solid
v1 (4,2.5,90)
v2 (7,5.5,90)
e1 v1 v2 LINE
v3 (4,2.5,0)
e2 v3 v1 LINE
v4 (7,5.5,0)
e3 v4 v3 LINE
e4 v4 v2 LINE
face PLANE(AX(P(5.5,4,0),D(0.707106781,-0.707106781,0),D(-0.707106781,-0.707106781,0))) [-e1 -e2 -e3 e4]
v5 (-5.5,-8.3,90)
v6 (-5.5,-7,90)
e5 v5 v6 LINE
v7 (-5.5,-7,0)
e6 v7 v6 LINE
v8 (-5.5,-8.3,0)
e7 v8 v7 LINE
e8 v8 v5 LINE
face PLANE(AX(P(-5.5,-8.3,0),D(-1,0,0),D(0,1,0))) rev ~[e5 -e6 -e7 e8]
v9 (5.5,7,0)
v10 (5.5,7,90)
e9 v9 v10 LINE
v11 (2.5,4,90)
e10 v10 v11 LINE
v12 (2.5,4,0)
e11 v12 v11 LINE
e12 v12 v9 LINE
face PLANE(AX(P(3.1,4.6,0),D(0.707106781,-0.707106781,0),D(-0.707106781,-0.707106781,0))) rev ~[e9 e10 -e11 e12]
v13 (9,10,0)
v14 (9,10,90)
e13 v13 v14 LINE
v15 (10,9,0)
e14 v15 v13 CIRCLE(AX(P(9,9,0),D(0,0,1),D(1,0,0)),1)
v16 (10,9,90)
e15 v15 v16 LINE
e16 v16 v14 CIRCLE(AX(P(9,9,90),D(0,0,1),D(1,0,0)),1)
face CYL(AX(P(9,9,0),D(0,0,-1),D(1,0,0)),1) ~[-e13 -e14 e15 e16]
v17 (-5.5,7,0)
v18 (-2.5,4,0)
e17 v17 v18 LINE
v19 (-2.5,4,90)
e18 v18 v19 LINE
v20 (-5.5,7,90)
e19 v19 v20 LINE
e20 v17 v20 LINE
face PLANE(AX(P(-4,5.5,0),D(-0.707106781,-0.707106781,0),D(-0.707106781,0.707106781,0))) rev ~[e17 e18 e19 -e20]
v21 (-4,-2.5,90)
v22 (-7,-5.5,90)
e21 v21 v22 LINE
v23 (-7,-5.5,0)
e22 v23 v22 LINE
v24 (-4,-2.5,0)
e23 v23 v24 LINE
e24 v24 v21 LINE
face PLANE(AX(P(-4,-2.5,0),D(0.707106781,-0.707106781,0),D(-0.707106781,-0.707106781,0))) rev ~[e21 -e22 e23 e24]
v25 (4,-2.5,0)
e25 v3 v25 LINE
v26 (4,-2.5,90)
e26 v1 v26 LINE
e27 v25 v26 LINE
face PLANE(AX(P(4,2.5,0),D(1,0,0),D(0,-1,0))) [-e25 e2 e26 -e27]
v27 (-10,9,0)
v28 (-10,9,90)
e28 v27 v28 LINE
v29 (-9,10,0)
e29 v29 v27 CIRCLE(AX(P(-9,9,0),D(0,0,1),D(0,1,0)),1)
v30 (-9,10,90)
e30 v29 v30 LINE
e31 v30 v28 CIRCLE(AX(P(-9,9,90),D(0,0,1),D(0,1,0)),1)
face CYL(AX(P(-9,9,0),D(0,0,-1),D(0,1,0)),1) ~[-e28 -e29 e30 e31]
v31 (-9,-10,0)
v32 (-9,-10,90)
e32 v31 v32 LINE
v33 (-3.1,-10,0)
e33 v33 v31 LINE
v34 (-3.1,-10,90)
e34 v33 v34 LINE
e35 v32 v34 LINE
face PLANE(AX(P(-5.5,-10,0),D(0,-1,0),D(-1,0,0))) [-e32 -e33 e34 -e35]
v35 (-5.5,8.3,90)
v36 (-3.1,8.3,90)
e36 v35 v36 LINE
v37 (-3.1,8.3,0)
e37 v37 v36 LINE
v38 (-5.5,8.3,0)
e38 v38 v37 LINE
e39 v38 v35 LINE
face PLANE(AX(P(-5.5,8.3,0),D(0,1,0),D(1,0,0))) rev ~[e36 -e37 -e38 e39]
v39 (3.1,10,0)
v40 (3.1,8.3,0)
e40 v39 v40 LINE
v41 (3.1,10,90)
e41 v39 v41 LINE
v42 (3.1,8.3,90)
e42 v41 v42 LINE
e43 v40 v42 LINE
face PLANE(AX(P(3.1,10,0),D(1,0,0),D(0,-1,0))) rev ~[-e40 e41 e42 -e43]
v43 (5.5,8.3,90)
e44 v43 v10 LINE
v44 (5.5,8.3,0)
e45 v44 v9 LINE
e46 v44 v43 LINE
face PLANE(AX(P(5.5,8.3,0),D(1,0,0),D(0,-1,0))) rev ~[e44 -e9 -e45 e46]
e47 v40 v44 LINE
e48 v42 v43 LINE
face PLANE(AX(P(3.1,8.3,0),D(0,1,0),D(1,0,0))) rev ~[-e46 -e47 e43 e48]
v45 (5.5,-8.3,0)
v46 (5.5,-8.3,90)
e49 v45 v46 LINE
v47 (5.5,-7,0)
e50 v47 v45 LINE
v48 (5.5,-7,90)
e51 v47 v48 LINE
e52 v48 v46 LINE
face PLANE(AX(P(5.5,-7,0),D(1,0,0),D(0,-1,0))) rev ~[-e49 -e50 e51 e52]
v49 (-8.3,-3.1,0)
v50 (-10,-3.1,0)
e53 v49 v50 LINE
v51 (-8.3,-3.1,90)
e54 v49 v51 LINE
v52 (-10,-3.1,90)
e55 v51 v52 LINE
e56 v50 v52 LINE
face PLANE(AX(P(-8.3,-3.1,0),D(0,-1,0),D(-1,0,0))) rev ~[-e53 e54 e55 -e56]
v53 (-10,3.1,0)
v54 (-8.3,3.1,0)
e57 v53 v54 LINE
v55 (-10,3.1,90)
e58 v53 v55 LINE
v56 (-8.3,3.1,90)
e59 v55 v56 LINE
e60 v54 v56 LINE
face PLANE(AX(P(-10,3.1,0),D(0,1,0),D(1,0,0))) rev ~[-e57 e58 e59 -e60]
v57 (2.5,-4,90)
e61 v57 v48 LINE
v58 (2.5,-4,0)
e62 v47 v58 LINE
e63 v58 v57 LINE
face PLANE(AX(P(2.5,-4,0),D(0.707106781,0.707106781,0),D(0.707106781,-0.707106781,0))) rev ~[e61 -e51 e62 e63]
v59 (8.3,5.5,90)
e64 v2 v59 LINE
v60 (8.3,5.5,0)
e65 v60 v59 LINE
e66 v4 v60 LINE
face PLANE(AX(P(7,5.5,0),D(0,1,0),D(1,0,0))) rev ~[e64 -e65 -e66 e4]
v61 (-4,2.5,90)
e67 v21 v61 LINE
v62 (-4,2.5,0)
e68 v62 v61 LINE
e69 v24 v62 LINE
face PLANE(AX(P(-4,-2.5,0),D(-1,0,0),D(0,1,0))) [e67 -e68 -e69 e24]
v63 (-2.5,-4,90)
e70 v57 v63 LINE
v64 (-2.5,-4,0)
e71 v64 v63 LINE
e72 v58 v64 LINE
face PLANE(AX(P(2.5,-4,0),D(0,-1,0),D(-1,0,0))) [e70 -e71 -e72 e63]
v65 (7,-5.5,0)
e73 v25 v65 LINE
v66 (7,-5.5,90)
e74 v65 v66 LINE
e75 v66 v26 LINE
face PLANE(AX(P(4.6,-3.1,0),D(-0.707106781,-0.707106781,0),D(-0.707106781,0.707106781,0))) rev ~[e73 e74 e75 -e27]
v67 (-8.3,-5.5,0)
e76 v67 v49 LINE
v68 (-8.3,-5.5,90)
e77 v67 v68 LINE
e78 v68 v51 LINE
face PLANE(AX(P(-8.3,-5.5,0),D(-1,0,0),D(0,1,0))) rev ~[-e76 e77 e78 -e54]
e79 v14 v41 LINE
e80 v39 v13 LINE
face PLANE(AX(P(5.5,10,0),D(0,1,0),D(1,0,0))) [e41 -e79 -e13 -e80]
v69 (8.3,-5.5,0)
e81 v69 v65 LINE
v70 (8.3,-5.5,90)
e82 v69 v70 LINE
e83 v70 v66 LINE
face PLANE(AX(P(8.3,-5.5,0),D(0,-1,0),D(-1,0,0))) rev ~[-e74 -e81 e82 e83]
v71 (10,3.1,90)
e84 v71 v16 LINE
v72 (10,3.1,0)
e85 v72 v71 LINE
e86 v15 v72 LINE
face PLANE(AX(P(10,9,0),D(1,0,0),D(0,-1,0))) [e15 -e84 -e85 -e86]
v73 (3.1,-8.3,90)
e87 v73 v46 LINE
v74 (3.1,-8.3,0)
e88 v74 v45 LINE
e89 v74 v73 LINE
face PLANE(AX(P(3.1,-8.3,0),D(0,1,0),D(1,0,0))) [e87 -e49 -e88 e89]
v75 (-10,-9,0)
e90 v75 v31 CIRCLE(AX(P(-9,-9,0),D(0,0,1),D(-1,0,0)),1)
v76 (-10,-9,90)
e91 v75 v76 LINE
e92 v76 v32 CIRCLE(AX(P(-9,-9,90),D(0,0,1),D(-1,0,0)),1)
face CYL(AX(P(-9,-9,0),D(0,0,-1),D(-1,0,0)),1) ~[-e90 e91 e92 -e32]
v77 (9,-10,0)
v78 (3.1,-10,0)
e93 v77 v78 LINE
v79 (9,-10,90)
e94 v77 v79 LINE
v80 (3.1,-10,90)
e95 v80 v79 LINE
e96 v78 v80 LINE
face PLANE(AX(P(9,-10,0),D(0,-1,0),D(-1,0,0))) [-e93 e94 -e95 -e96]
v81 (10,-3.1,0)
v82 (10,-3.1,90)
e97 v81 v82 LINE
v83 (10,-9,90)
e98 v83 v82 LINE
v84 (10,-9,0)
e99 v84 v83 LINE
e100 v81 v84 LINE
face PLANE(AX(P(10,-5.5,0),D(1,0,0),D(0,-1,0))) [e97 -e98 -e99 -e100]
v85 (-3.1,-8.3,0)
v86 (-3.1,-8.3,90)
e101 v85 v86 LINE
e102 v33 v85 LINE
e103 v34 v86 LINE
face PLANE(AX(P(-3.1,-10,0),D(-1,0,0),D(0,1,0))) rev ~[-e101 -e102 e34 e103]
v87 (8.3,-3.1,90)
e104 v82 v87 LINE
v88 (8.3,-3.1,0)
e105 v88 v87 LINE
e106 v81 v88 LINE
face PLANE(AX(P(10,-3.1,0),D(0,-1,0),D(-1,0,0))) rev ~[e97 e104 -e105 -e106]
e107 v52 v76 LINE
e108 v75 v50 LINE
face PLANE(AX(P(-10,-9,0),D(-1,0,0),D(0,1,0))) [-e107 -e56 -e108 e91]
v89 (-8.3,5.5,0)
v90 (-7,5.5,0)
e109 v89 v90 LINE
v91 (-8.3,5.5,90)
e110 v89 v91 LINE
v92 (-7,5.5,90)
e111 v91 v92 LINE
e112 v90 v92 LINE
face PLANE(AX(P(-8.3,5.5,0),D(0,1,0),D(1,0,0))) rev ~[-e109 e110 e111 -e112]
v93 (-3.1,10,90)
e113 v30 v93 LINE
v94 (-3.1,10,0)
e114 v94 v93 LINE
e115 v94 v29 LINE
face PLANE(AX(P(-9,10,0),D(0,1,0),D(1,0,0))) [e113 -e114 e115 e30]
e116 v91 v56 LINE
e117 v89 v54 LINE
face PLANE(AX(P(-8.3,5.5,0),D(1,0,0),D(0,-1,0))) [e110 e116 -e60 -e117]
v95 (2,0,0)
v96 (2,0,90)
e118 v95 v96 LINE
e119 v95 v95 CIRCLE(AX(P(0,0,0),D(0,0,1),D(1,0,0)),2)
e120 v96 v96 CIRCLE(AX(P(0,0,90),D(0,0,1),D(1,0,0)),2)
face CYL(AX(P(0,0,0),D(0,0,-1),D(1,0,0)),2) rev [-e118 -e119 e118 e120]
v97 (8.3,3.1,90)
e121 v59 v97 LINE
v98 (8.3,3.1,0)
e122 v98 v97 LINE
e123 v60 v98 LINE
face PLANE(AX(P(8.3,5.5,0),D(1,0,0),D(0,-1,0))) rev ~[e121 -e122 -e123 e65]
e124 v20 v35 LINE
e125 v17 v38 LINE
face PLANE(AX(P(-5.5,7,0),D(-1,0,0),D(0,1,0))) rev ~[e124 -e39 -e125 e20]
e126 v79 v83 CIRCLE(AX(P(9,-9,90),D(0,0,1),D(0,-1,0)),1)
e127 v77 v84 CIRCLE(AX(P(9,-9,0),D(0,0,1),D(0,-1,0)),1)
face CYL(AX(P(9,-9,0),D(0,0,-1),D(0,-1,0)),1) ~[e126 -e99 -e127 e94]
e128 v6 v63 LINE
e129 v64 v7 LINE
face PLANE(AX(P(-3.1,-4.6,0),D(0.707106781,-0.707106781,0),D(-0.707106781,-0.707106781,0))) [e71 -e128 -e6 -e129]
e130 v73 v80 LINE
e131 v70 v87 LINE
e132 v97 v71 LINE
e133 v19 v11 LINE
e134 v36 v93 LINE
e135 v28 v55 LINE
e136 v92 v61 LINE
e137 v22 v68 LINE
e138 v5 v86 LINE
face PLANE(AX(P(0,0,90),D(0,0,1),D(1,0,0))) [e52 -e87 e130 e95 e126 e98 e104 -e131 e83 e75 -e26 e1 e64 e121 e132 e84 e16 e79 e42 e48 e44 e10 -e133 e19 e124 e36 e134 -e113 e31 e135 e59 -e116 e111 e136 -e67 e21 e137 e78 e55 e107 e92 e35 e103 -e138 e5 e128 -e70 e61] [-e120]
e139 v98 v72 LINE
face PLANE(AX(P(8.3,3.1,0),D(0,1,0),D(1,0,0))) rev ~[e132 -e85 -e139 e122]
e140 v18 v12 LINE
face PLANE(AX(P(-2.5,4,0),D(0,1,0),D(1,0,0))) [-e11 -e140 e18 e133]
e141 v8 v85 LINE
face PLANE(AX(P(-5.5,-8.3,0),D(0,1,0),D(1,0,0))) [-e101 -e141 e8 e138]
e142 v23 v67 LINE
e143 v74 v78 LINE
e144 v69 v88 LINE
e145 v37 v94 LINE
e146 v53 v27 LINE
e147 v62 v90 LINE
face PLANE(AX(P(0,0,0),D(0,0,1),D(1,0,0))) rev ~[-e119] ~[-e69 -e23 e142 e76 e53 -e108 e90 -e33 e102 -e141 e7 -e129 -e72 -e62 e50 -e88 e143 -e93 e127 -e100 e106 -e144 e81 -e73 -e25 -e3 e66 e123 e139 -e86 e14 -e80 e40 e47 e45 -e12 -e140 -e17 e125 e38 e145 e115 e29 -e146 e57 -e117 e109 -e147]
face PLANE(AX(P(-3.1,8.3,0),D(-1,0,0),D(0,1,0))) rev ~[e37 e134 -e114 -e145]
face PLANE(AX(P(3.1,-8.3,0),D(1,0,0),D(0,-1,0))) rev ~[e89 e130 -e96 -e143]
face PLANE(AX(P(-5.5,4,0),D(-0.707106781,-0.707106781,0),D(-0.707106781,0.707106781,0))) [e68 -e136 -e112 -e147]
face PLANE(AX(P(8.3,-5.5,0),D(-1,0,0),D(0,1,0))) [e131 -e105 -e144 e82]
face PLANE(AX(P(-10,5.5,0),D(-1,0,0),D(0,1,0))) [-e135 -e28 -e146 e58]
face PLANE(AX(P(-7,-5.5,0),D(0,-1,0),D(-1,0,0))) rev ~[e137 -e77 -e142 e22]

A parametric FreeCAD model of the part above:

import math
import FreeCAD as App
import Part
import Sketcher
from FreeCAD import Vector
Q = App.Units.Quantity

doc = App.newDocument("Part")
body = doc.addObject("PartDesign::Body", "Body")

sketch1 = body.newObject("Sketcher::SketchObject", "Sketch")
sketch1.AttachmentSupport = (doc.getObject("XY_Plane"), [""])
sketch1.MapMode = "FlatFace"
sketch1.addGeometry(Part.ArcOfCircle(Part.Circle(Vector(-9, 9, 0), Vector(0, 0, 1), 1), math.radians(90), math.radians(180)), False)
sketch1.addGeometry(Part.LineSegment(Vector(-10, 9, 0), Vector(-10, 3.1, 0)), False)
sketch1.addGeometry(Part.LineSegment(Vector(-10, 3.1, 0), Vector(-8.3, 3.1, 0)), False)
sketch1.addGeometry(Part.LineSegment(Vector(-8.3, 3.1, 0), Vector(-8.3, 5.5, 0)), False)
sketch1.addGeometry(Part.LineSegment(Vector(-8.3, 5.5, 0), Vector(-7, 5.5, 0)), False)
sketch1.addGeometry(Part.LineSegment(Vector(-7, 5.5, 0), Vector(-4, 2.5, 0)), False)
sketch1.addGeometry(Part.LineSegment(Vector(-4, 2.5, 0), Vector(-4, -2.5, 0)), False)
sketch1.addGeometry(Part.LineSegment(Vector(-4, -2.5, 0), Vector(-7, -5.5, 0)), False)
sketch1.addGeometry(Part.LineSegment(Vector(-7, -5.5, 0), Vector(-8.3, -5.5, 0)), False)
sketch1.addGeometry(Part.LineSegment(Vector(-8.3, -5.5, 0), Vector(-8.3, -3.1, 0)), False)
sketch1.addGeometry(Part.LineSegment(Vector(-8.3, -3.1, 0), Vector(-10, -3.1, 0)), False)
sketch1.addGeometry(Part.LineSegment(Vector(-10, -3.1, 0), Vector(-10, -9, 0)), False)
sketch1.addGeometry(Part.ArcOfCircle(Part.Circle(Vector(-9, -9, 0), Vector(0, 0, 1), 1), math.radians(180), math.radians(270)), False)
sketch1.addGeometry(Part.LineSegment(Vector(-9, -10, 0), Vector(-3.1, -10, 0)), False)
sketch1.addGeometry(Part.LineSegment(Vector(-3.1, -10, 0), Vector(-3.1, -8.3, 0)), False)
sketch1.addGeometry(Part.LineSegment(Vector(-3.1, -8.3, 0), Vector(-5.5, -8.3, 0)), False)
sketch1.addGeometry(Part.LineSegment(Vector(-5.5, -8.3, 0), Vector(-5.5, -7, 0)), False)
sketch1.addGeometry(Part.LineSegment(Vector(-5.5, -7, 0), Vector(-2.5, -4, 0)), False)
sketch1.addGeometry(Part.LineSegment(Vector(-2.5, -4, 0), Vector(2.5, -4, 0)), False)
sketch1.addGeometry(Part.LineSegment(Vector(2.5, -4, 0), Vector(5.5, -7, 0)), False)
sketch1.addGeometry(Part.LineSegment(Vector(5.5, -7, 0), Vector(5.5, -8.3, 0)), False)
sketch1.addGeometry(Part.LineSegment(Vector(5.5, -8.3, 0), Vector(3.1, -8.3, 0)), False)
sketch1.addGeometry(Part.LineSegment(Vector(3.1, -8.3, 0), Vector(3.1, -10, 0)), False)
sketch1.addGeometry(Part.LineSegment(Vector(3.1, -10, 0), Vector(9, -10, 0)), False)
sketch1.addGeometry(Part.ArcOfCircle(Part.Circle(Vector(9, -9, 0), Vector(0, 0, 1), 1), math.radians(-90), math.radians(0)), False)
sketch1.addGeometry(Part.LineSegment(Vector(10, -9, 0), Vector(10, -3.1, 0)), False)
sketch1.addGeometry(Part.LineSegment(Vector(10, -3.1, 0), Vector(8.3, -3.1, 0)), False)
sketch1.addGeometry(Part.LineSegment(Vector(8.3, -3.1, 0), Vector(8.3, -5.5, 0)), False)
sketch1.addGeometry(Part.LineSegment(Vector(8.3, -5.5, 0), Vector(7, -5.5, 0)), False)
sketch1.addGeometry(Part.LineSegment(Vector(7, -5.5, 0), Vector(4, -2.5, 0)), False)
sketch1.addGeometry(Part.LineSegment(Vector(4, -2.5, 0), Vector(4, 2.5, 0)), False)
sketch1.addGeometry(Part.LineSegment(Vector(4, 2.5, 0), Vector(7, 5.5, 0)), False)
sketch1.addGeometry(Part.LineSegment(Vector(7, 5.5, 0), Vector(8.3, 5.5, 0)), False)
sketch1.addGeometry(Part.LineSegment(Vector(8.3, 5.5, 0), Vector(8.3, 3.1, 0)), False)
sketch1.addGeometry(Part.LineSegment(Vector(8.3, 3.1, 0), Vector(10, 3.1, 0)), False)
sketch1.addGeometry(Part.LineSegment(Vector(10, 3.1, 0), Vector(10, 9, 0)), False)
sketch1.addGeometry(Part.ArcOfCircle(Part.Circle(Vector(9, 9, 0), Vector(0, 0, 1), 1), math.radians(0), math.radians(90)), False)
sketch1.addGeometry(Part.LineSegment(Vector(9, 10, 0), Vector(3.1, 10, 0)), False)
sketch1.addGeometry(Part.LineSegment(Vector(3.1, 10, 0), Vector(3.1, 8.3, 0)), False)
sketch1.addGeometry(Part.LineSegment(Vector(3.1, 8.3, 0), Vector(5.5, 8.3, 0)), False)
sketch1.addGeometry(Part.LineSegment(Vector(5.5, 8.3, 0), Vector(5.5, 7, 0)), False)
sketch1.addGeometry(Part.LineSegment(Vector(5.5, 7, 0), Vector(2.5, 4, 0)), False)
sketch1.addGeometry(Part.LineSegment(Vector(2.5, 4, 0), Vector(-2.5, 4, 0)), False)
sketch1.addGeometry(Part.LineSegment(Vector(-2.5, 4, 0), Vector(-5.5, 7, 0)), False)
sketch1.addGeometry(Part.LineSegment(Vector(-5.5, 7, 0), Vector(-5.5, 8.3, 0)), False)
sketch1.addGeometry(Part.LineSegment(Vector(-5.5, 8.3, 0), Vector(-3.1, 8.3, 0)), False)
sketch1.addGeometry(Part.LineSegment(Vector(-3.1, 8.3, 0), Vector(-3.1, 10, 0)), False)
sketch1.addGeometry(Part.LineSegment(Vector(-3.1, 10, 0), Vector(-9, 10, 0)), False)
sketch1.addGeometry(Part.Circle(Vector(0, 0, 0), Vector(0, 0, 1), 2), False)
sketch1.addConstraint(Sketcher.Constraint("Tangent", 0, 2, 1, 1))
sketch1.addConstraint(Sketcher.Constraint("Coincident", 1, 2, 2, 1))
sketch1.addConstraint(Sketcher.Constraint("Coincident", 2, 2, 3, 1))
sketch1.addConstraint(Sketcher.Constraint("Coincident", 3, 2, 4, 1))
sketch1.addConstraint(Sketcher.Constraint("Coincident", 4, 2, 5, 1))
sketch1.addConstraint(Sketcher.Constraint("Coincident", 5, 2, 6, 1))
sketch1.addConstraint(Sketcher.Constraint("Coincident", 6, 2, 7, 1))
sketch1.addConstraint(Sketcher.Constraint("Coincident", 7, 2, 8, 1))
sketch1.addConstraint(Sketcher.Constraint("Coincident", 8, 2, 9, 1))
sketch1.addConstraint(Sketcher.Constraint("Coincident", 9, 2, 10, 1))
sketch1.addConstraint(Sketcher.Constraint("Coincident", 10, 2, 11, 1))
sketch1.addConstraint(Sketcher.Constraint("Tangent", 11, 2, 12, 1))
sketch1.addConstraint(Sketcher.Constraint("Tangent", 12, 2, 13, 1))
sketch1.addConstraint(Sketcher.Constraint("Coincident", 13, 2, 14, 1))
sketch1.addConstraint(Sketcher.Constraint("Coincident", 14, 2, 15, 1))
sketch1.addConstraint(Sketcher.Constraint("Coincident", 15, 2, 16, 1))
sketch1.addConstraint(Sketcher.Constraint("Coincident", 16, 2, 17, 1))
sketch1.addConstraint(Sketcher.Constraint("Coincident", 17, 2, 18, 1))
sketch1.addConstraint(Sketcher.Constraint("Coincident", 18, 2, 19, 1))
sketch1.addConstraint(Sketcher.Constraint("Coincident", 19, 2, 20, 1))
sketch1.addConstraint(Sketcher.Constraint("Coincident", 20, 2, 21, 1))
sketch1.addConstraint(Sketcher.Constraint("Coincident", 21, 2, 22, 1))
sketch1.addConstraint(Sketcher.Constraint("Coincident", 22, 2, 23, 1))
sketch1.addConstraint(Sketcher.Constraint("Tangent", 23, 2, 24, 1))
sketch1.addConstraint(Sketcher.Constraint("Tangent", 24, 2, 25, 1))
sketch1.addConstraint(Sketcher.Constraint("Coincident", 25, 2, 26, 1))
sketch1.addConstraint(Sketcher.Constraint("Coincident", 26, 2, 27, 1))
sketch1.addConstraint(Sketcher.Constraint("Coincident", 27, 2, 28, 1))
sketch1.addConstraint(Sketcher.Constraint("Coincident", 28, 2, 29, 1))
sketch1.addConstraint(Sketcher.Constraint("Coincident", 29, 2, 30, 1))
sketch1.addConstraint(Sketcher.Constraint("Coincident", 30, 2, 31, 1))
sketch1.addConstraint(Sketcher.Constraint("Coincident", 31, 2, 32, 1))
sketch1.addConstraint(Sketcher.Constraint("Coincident", 32, 2, 33, 1))
sketch1.addConstraint(Sketcher.Constraint("Coincident", 33, 2, 34, 1))
sketch1.addConstraint(Sketcher.Constraint("Coincident", 34, 2, 35, 1))
sketch1.addConstraint(Sketcher.Constraint("Tangent", 35, 2, 36, 1))
sketch1.addConstraint(Sketcher.Constraint("Tangent", 36, 2, 37, 1))
sketch1.addConstraint(Sketcher.Constraint("Coincident", 37, 2, 38, 1))
sketch1.addConstraint(Sketcher.Constraint("Coincident", 38, 2, 39, 1))
sketch1.addConstraint(Sketcher.Constraint("Coincident", 39, 2, 40, 1))
sketch1.addConstraint(Sketcher.Constraint("Coincident", 40, 2, 41, 1))
sketch1.addConstraint(Sketcher.Constraint("Coincident", 41, 2, 42, 1))
sketch1.addConstraint(Sketcher.Constraint("Coincident", 42, 2, 43, 1))
sketch1.addConstraint(Sketcher.Constraint("Coincident", 43, 2, 44, 1))
sketch1.addConstraint(Sketcher.Constraint("Coincident", 44, 2, 45, 1))
sketch1.addConstraint(Sketcher.Constraint("Coincident", 45, 2, 46, 1))
sketch1.addConstraint(Sketcher.Constraint("Coincident", 46, 2, 47, 1))
sketch1.addConstraint(Sketcher.Constraint("Tangent", 47, 2, 0, 1))
sketch1.addConstraint(Sketcher.Constraint("Vertical", 1))
sketch1.addConstraint(Sketcher.Constraint("Horizontal", 2))
sketch1.addConstraint(Sketcher.Constraint("Vertical", 3))
sketch1.addConstraint(Sketcher.Constraint("Horizontal", 4))
sketch1.addConstraint(Sketcher.Constraint("Vertical", 6))
sketch1.addConstraint(Sketcher.Constraint("Horizontal", 8))
sketch1.addConstraint(Sketcher.Constraint("Vertical", 9))
sketch1.addConstraint(Sketcher.Constraint("Horizontal", 10))
sketch1.addConstraint(Sketcher.Constraint("Vertical", 11))
sketch1.addConstraint(Sketcher.Constraint("Horizontal", 13))
sketch1.addConstraint(Sketcher.Constraint("Vertical", 14))
sketch1.addConstraint(Sketcher.Constraint("Horizontal", 15))
sketch1.addConstraint(Sketcher.Constraint("Vertical", 16))
sketch1.addConstraint(Sketcher.Constraint("Horizontal", 18))
sketch1.addConstraint(Sketcher.Constraint("Vertical", 20))
sketch1.addConstraint(Sketcher.Constraint("Horizontal", 21))
sketch1.addConstraint(Sketcher.Constraint("Vertical", 22))
sketch1.addConstraint(Sketcher.Constraint("Horizontal", 23))
sketch1.addConstraint(Sketcher.Constraint("Vertical", 25))
sketch1.addConstraint(Sketcher.Constraint("Horizontal", 26))
sketch1.addConstraint(Sketcher.Constraint("Vertical", 27))
sketch1.addConstraint(Sketcher.Constraint("Horizontal", 28))
sketch1.addConstraint(Sketcher.Constraint("Vertical", 30))
sketch1.addConstraint(Sketcher.Constraint("Horizontal", 32))
sketch1.addConstraint(Sketcher.Constraint("Vertical", 33))
sketch1.addConstraint(Sketcher.Constraint("Horizontal", 34))
sketch1.addConstraint(Sketcher.Constraint("Vertical", 35))
sketch1.addConstraint(Sketcher.Constraint("Horizontal", 37))
sketch1.addConstraint(Sketcher.Constraint("Vertical", 38))
sketch1.addConstraint(Sketcher.Constraint("Horizontal", 39))
sketch1.addConstraint(Sketcher.Constraint("Vertical", 40))
sketch1.addConstraint(Sketcher.Constraint("Horizontal", 42))
sketch1.addConstraint(Sketcher.Constraint("Vertical", 44))
sketch1.addConstraint(Sketcher.Constraint("Horizontal", 45))
sketch1.addConstraint(Sketcher.Constraint("Vertical", 46))
sketch1.addConstraint(Sketcher.Constraint("Horizontal", 47))
sketch1.addConstraint(Sketcher.Constraint("Coincident", 48, 3, -1, 1))
sketch1.addConstraint(Sketcher.Constraint("Equal", 0, 12))
sketch1.addConstraint(Sketcher.Constraint("Equal", 12, 24))
sketch1.addConstraint(Sketcher.Constraint("Equal", 24, 36))
sketch1.addConstraint(Sketcher.Constraint("Symmetric", 0, 3, 24, 3, -1, 1))
sketch1.addConstraint(Sketcher.Constraint("Symmetric", 12, 3, 36, 3, -1, 1))
sketch1.addConstraint(Sketcher.Constraint("Symmetric", 2, 2, 26, 2, -1, 1))
sketch1.addConstraint(Sketcher.Constraint("Symmetric", 4, 2, 28, 2, -1, 1))
sketch1.addConstraint(Sketcher.Constraint("Symmetric", 5, 2, 29, 2, -1, 1))
sketch1.addConstraint(Sketcher.Constraint("Symmetric", 7, 2, 31, 2, -1, 1))
sketch1.addConstraint(Sketcher.Constraint("Symmetric", 9, 2, 33, 2, -1, 1))
sketch1.addConstraint(Sketcher.Constraint("Symmetric", 14, 2, 38, 2, -1, 1))
sketch1.addConstraint(Sketcher.Constraint("Symmetric", 16, 2, 40, 2, -1, 1))
sketch1.addConstraint(Sketcher.Constraint("Symmetric", 17, 2, 41, 2, -1, 1))
sketch1.addConstraint(Sketcher.Constraint("Symmetric", 19, 2, 43, 2, -1, 1))
sketch1.addConstraint(Sketcher.Constraint("Symmetric", 21, 2, 45, 2, -1, 1))
sketch1.addConstraint(Sketcher.Constraint("Symmetric", 12, 3, 24, 3, -2))
sketch1.addConstraint(Sketcher.Constraint("Symmetric", 16, 2, 19, 2, -2))
sketch1.addConstraint(Sketcher.Constraint("Symmetric", 14, 2, 21, 2, -2))
sketch1.addConstraint(Sketcher.Constraint("Symmetric", 9, 2, 26, 2, -2))
sketch1.addConstraint(Sketcher.Constraint("Symmetric", 7, 2, 28, 2, -2))
sketch1.addConstraint(Sketcher.Constraint("Perpendicular", 5, 7))
sketch1.addConstraint(Sketcher.Constraint("Parallel", 7, 17))
sketch1.addConstraint(Sketcher.Constraint("Perpendicular", 17, 19))
sketch1.addConstraint(Sketcher.Constraint("Perpendicular", 29, 31))
sketch1.addConstraint(Sketcher.Constraint("Perpendicular", 41, 43))
sketch1.addConstraint(Sketcher.Constraint("Horizontal", 6, 2, 29, 2))
sketch1.addConstraint(Sketcher.Constraint("Equal", 47, 1))
sketch1.addConstraint(Sketcher.Constraint("Equal", 45, 3))
sketch1.addConstraint(Sketcher.Constraint("Equal", 42, 6))
sketch1.addConstraint(Sketcher.Constraint("Equal", 34, 14))
sketch1.addConstraint(Sketcher.Constraint("Equal", 32, 16))
sketch1.addConstraint(Sketcher.Constraint("Equal", 7, 17))
sketch1.addConstraint(Sketcher.Constraint("Diameter", 48, Q("4 mm")))
sketch1.addConstraint(Sketcher.Constraint("Radius", 0, Q("1 mm")))
sketch1.addConstraint(Sketcher.Constraint("DistanceX", 4, 1, 4, 2, Q("1.3 mm")))
sketch1.addConstraint(Sketcher.Constraint("DistanceX", 5, 2, -1, 1, Q("4 mm")))
sketch1.addConstraint(Sketcher.Constraint("DistanceY", 7, 2, 5, 2, Q("8 mm")))
sketch1.addConstraint(Sketcher.Constraint("DistanceY", -1, 1, 1, 2, Q("3.1 mm")))
sketch1.addConstraint(Sketcher.Constraint("DistanceY", -1, 1, 3, 2, Q("5.5 mm")))
sketch1.addConstraint(Sketcher.Constraint("DistanceX", 2, 1, 2, 2, Q("1.7 mm")))
pad1 = body.newObject("PartDesign::Pad", "Pad")
pad1.Profile = sketch1
pad1.Length = 90

doc.recompute()
